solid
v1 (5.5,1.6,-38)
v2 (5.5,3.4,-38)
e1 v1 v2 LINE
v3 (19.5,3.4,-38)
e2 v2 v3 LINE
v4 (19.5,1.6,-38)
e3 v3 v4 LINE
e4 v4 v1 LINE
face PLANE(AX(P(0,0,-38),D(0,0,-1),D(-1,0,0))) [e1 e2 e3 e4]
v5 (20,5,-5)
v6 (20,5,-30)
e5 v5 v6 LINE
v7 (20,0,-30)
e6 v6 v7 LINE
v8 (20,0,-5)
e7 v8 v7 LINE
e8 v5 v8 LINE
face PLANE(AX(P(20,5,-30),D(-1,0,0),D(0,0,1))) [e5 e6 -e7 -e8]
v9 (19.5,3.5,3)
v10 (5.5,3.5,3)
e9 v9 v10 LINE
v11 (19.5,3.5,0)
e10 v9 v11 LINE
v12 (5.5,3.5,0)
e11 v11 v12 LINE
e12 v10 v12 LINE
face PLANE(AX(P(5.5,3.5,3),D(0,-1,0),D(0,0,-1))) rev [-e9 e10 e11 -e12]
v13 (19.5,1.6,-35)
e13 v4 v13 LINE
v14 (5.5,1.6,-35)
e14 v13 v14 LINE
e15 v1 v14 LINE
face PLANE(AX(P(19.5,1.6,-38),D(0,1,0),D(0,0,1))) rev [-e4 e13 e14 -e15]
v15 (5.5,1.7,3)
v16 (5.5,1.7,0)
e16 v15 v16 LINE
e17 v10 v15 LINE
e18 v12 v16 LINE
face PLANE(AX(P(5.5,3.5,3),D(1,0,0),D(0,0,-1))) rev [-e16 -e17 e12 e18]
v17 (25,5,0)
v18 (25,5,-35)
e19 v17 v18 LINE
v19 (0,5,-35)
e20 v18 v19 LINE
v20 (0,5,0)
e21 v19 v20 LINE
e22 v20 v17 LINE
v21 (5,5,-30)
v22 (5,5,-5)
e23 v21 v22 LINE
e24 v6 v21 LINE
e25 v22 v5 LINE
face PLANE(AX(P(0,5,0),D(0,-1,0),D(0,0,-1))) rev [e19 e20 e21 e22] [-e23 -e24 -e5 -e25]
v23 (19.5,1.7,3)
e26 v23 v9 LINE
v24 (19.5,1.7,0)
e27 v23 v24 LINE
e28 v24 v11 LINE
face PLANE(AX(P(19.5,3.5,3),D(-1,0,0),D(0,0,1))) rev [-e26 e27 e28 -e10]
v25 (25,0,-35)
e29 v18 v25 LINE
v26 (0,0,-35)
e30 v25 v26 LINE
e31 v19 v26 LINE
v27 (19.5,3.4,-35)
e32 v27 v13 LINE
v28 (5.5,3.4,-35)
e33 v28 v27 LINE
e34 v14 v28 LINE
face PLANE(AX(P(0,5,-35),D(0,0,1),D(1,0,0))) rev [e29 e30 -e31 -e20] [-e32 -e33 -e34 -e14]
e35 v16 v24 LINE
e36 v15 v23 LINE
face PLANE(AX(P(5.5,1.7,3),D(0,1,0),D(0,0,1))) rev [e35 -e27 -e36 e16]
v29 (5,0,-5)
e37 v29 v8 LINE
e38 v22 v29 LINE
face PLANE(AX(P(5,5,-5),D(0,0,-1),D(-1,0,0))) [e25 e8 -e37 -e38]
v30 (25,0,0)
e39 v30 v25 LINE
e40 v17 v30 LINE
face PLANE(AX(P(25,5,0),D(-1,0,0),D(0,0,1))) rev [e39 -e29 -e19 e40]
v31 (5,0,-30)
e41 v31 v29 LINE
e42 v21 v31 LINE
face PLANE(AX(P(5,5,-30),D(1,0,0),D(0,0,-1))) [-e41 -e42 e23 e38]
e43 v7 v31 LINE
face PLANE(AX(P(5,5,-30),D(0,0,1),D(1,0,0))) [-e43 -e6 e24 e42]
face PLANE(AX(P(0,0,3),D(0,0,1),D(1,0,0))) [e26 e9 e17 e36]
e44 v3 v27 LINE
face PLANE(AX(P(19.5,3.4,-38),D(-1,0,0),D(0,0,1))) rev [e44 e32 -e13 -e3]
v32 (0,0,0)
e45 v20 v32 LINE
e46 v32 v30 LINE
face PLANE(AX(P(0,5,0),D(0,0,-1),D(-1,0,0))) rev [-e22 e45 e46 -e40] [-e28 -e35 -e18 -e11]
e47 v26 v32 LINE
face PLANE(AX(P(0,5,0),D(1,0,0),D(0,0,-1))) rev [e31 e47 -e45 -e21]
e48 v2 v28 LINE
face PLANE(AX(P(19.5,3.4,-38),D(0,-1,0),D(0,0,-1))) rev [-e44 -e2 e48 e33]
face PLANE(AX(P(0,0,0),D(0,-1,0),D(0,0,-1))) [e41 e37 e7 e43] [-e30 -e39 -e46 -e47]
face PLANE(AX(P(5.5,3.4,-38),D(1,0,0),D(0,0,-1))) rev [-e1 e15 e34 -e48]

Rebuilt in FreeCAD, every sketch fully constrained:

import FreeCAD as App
import Part
import Sketcher

V = App.Vector
Q = App.Units.Quantity

doc = App.newDocument("Part")
params = doc.addObject("Spreadsheet::Sheet", "Params")
for row, (alias, value) in enumerate([
    ("sketch1_width", "25 mm"),
    ("sketch1_width2", "15 mm"),
    ("sketch1_height", "35 mm"),
    ("pad1_length", "5 mm"),
    ("sketch2_width", "14 mm"),
    ("sketch2_height", "1.8 mm"),
    ("pad2_length", "3 mm"),
    ("sketch3_width", "14 mm"),
    ("sketch3_height", "1.8 mm"),
    ("pad3_length", "3 mm"),
], start=1):
    params.set(f"A{row}", alias)
    params.set(f"B{row}", "=" + value)
    params.setAlias(f"B{row}", alias)

body = doc.addObject("PartDesign::Body", "Body")

# Sketch on XZ plane
sketch1 = doc.addObject("Sketcher::SketchObject", "Sketch")
body.addObject(sketch1)
sketch1.AttachmentSupport = (doc.XZ_Plane, [""])
sketch1.MapMode = "FlatFace"
sketch1.addGeometry(Part.LineSegment(V(0, -35, 0), V(0, 0, 0)), False)
sketch1.addGeometry(Part.LineSegment(V(0, 0, 0), V(25, 0, 0)), False)
sketch1.addGeometry(Part.LineSegment(V(25, 0, 0), V(25, -35, 0)), False)
sketch1.addGeometry(Part.LineSegment(V(25, -35, 0), V(0, -35, 0)), False)
sketch1.addGeometry(Part.LineSegment(V(20, -5, 0), V(5, -5, 0)), False)
sketch1.addGeometry(Part.LineSegment(V(5, -5, 0), V(5, -30, 0)), False)
sketch1.addGeometry(Part.LineSegment(V(5, -30, 0), V(20, -30, 0)), False)
sketch1.addGeometry(Part.LineSegment(V(20, -30, 0), V(20, -5, 0)), False)
sketch1.addConstraint(Sketcher.Constraint("Coincident", 0, 2, 1, 1))
sketch1.addConstraint(Sketcher.Constraint("Coincident", 1, 2, 2, 1))
sketch1.addConstraint(Sketcher.Constraint("Coincident", 2, 2, 3, 1))
sketch1.addConstraint(Sketcher.Constraint("Coincident", 3, 2, 0, 1))
sketch1.addConstraint(Sketcher.Constraint("Coincident", 4, 2, 5, 1))
sketch1.addConstraint(Sketcher.Constraint("Coincident", 5, 2, 6, 1))
sketch1.addConstraint(Sketcher.Constraint("Coincident", 6, 2, 7, 1))
sketch1.addConstraint(Sketcher.Constraint("Coincident", 7, 2, 4, 1))
sketch1.addConstraint(Sketcher.Constraint("Vertical", 0))
sketch1.addConstraint(Sketcher.Constraint("Horizontal", 1))
sketch1.addConstraint(Sketcher.Constraint("Vertical", 2))
sketch1.addConstraint(Sketcher.Constraint("Horizontal", 3))
sketch1.addConstraint(Sketcher.Constraint("Horizontal", 4))
sketch1.addConstraint(Sketcher.Constraint("Vertical", 5))
sketch1.addConstraint(Sketcher.Constraint("Horizontal", 6))
sketch1.addConstraint(Sketcher.Constraint("Vertical", 7))
sketch1.addConstraint(Sketcher.Constraint("Coincident", 0, 2, -1, 1))
sketch1.addConstraint(Sketcher.Constraint("Equal", 3, 5))
sketch1.addConstraint(Sketcher.Constraint("DistanceX", 1, 1, 1, 2, Q("25 mm")))
sketch1.addConstraint(Sketcher.Constraint("DistanceX", 4, 2, 4, 1, Q("15 mm")))
sketch1.addConstraint(Sketcher.Constraint("DistanceY", 0, 1, 0, 2, Q("35 mm")))
sketch1.addConstraint(Sketcher.Constraint("DistanceX", -1, 1, 4, 2, Q("5 mm")))
sketch1.addConstraint(Sketcher.Constraint("DistanceY", 4, 2, -1, 1, Q("5 mm")))
sketch1.setExpression("Constraints[18]", "Params.sketch1_width")
sketch1.setExpression("Constraints[19]", "Params.sketch1_width2")
sketch1.setExpression("Constraints[20]", "Params.sketch1_height")
pad1 = doc.addObject("PartDesign::Pad", "Pad")
body.addObject(pad1)
pad1.Profile = sketch1
pad1.setExpression("Length", "Params.pad1_length")
pad1.Reversed = True

# Sketch on XY plane
sketch2 = doc.addObject("Sketcher::SketchObject", "Sketch001")
body.addObject(sketch2)
sketch2.AttachmentSupport = (doc.XY_Plane, [""])
sketch2.MapMode = "FlatFace"
sketch2.addGeometry(Part.LineSegment(V(5.5, 3.5, 0), V(5.5, 1.7, 0)), False)
sketch2.addGeometry(Part.LineSegment(V(5.5, 1.7, 0), V(19.5, 1.7, 0)), False)
sketch2.addGeometry(Part.LineSegment(V(19.5, 1.7, 0), V(19.5, 3.5, 0)), False)
sketch2.addGeometry(Part.LineSegment(V(19.5, 3.5, 0), V(5.5, 3.5, 0)), False)
sketch2.addConstraint(Sketcher.Constraint("Coincident", 0, 2, 1, 1))
sketch2.addConstraint(Sketcher.Constraint("Coincident", 1, 2, 2, 1))
sketch2.addConstraint(Sketcher.Constraint("Coincident", 2, 2, 3, 1))
sketch2.addConstraint(Sketcher.Constraint("Coincident", 3, 2, 0, 1))
sketch2.addConstraint(Sketcher.Constraint("Vertical", 0))
sketch2.addConstraint(Sketcher.Constraint("Horizontal", 1))
sketch2.addConstraint(Sketcher.Constraint("Vertical", 2))
sketch2.addConstraint(Sketcher.Constraint("Horizontal", 3))
sketch2.addConstraint(Sketcher.Constraint("DistanceX", 1, 1, 1, 2, Q("14 mm")))
sketch2.addConstraint(Sketcher.Constraint("DistanceY", 0, 2, 0, 1, Q("1.8 mm")))
sketch2.addConstraint(Sketcher.Constraint("DistanceX", -1, 1, 0, 2, Q("5.5 mm")))
sketch2.addConstraint(Sketcher.Constraint("DistanceY", -1, 1, 0, 2, Q("1.7 mm")))
sketch2.setExpression("Constraints[8]", "Params.sketch2_width")
sketch2.setExpression("Constraints[9]", "Params.sketch2_height")
pad2 = doc.addObject("PartDesign::Pad", "Pad001")
body.addObject(pad2)
pad2.Profile = sketch2
pad2.setExpression("Length", "Params.pad2_length")

# Sketch on XY plane
sketch3 = doc.addObject("Sketcher::SketchObject", "Sketch002")
body.addObject(sketch3)
sketch3.AttachmentSupport = (doc.XY_Plane, [""])
sketch3.MapMode = "FlatFace"
sketch3.AttachmentOffset = App.Placement(V(0, 0, -35), App.Rotation())
sketch3.addGeometry(Part.LineSegment(V(19.5, 3.4, 0), V(19.5, 1.6, 0)), False)
sketch3.addGeometry(Part.LineSegment(V(19.5, 1.6, 0), V(5.5, 1.6, 0)), False)
sketch3.addGeometry(Part.LineSegment(V(5.5, 1.6, 0), V(5.5, 3.4, 0)), False)
sketch3.addGeometry(Part.LineSegment(V(5.5, 3.4, 0), V(19.5, 3.4, 0)), False)
sketch3.addConstraint(Sketcher.Constraint("Coincident", 0, 2, 1, 1))
sketch3.addConstraint(Sketcher.Constraint("Coincident", 1, 2, 2, 1))
sketch3.addConstraint(Sketcher.Constraint("Coincident", 2, 2, 3, 1))
sketch3.addConstraint(Sketcher.Constraint("Coincident", 3, 2, 0, 1))
sketch3.addConstraint(Sketcher.Constraint("Vertical", 0))
sketch3.addConstraint(Sketcher.Constraint("Horizontal", 1))
sketch3.addConstraint(Sketcher.Constraint("Vertical", 2))
sketch3.addConstraint(Sketcher.Constraint("Horizontal", 3))
sketch3.addConstraint(Sketcher.Constraint("DistanceX", 1, 2, 1, 1, Q("14 mm")))
sketch3.addConstraint(Sketcher.Constraint("DistanceY", 0, 2, 0, 1, Q("1.8 mm")))
sketch3.addConstraint(Sketcher.Constraint("DistanceX", -1, 1, 0, 2, Q("19.5 mm")))
sketch3.addConstraint(Sketcher.Constraint("DistanceY", -1, 1, 0, 2, Q("1.6 mm")))
sketch3.setExpression("Constraints[8]", "Params.sketch3_width")
sketch3.setExpression("Constraints[9]", "Params.sketch3_height")
pad3 = doc.addObject("PartDesign::Pad", "Pad002")
body.addObject(pad3)
pad3.Profile = sketch3
pad3.setExpression("Length", "Params.pad3_length")
pad3.Reversed = True

doc.recompute()
